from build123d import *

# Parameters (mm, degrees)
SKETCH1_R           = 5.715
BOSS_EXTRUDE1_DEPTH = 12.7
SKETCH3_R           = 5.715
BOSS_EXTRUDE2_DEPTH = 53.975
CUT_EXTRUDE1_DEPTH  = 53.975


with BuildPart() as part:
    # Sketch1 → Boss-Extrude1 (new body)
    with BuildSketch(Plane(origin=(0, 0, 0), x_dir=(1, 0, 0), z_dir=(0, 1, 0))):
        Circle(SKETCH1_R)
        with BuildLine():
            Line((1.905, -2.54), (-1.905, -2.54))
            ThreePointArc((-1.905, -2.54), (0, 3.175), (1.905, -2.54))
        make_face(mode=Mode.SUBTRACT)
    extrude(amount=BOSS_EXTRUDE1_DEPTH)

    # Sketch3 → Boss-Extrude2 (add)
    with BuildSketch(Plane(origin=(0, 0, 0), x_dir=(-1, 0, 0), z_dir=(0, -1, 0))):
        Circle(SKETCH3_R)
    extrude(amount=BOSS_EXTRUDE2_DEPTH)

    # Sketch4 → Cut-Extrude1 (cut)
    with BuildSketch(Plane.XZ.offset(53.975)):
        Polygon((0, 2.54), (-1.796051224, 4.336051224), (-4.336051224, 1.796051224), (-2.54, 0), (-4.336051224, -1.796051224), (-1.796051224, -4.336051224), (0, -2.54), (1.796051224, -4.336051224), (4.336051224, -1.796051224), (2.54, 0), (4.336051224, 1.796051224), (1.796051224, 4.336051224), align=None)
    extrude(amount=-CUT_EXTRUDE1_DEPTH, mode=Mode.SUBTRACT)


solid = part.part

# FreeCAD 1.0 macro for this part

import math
import FreeCAD as App
import Part
import Sketcher

V = App.Vector
Q = App.Units.Quantity

doc = App.newDocument("Part")
params = doc.addObject("Spreadsheet::Sheet", "Params")
for row, (alias, value) in enumerate([
    ("sketch1_diameter", "0.45 in"),
    ("sketch1_radius", "0.125 in"),
    ("sketch1_width", "0.15 in"),
    ("pad1_length", "0.5 in"),
    ("sketch2_diameter", "0.45 in"),
    ("pad2_length", "2.125 in"),
    ("sketch3_length", "0.1 in"),
    ("pocket1_length", "2.125 in"),
], start=1):
    params.set(f"A{row}", alias)
    params.set(f"B{row}", "=" + value)
    params.setAlias(f"B{row}", alias)

body = doc.addObject("PartDesign::Body", "Body")

sketch1 = doc.addObject("Sketcher::SketchObject", "Sketch")
body.addObject(sketch1)
sketch1.AttachmentSupport = (doc.XZ_Plane, [""])
sketch1.MapMode = "FlatFace"
sketch1.addGeometry(Part.Circle(V(0, 0, 0), V(0, 0, 1), 5.715), False)
sketch1.addGeometry(Part.ArcOfCircle(Part.Circle(V(0, 0, 0), V(0, 0, 1), 3.175), math.radians(126.869898), math.radians(413.130102)), False)
sketch1.addGeometry(Part.LineSegment(V(1.905, 2.54, 0), V(-1.905, 2.54, 0)), False)
sketch1.addConstraint(Sketcher.Constraint("Coincident", 1, 1, 2, 2))
sketch1.addConstraint(Sketcher.Constraint("Coincident", 2, 1, 1, 2))
sketch1.addConstraint(Sketcher.Constraint("Horizontal", 2))
sketch1.addConstraint(Sketcher.Constraint("Coincident", 0, 3, -1, 1))
sketch1.addConstraint(Sketcher.Constraint("Coincident", 1, 3, -1, 1))
sketch1.addConstraint(Sketcher.Constraint("Diameter", 0, Q("0.45 in")))
sketch1.addConstraint(Sketcher.Constraint("Radius", 1, Q("0.125 in")))
sketch1.addConstraint(Sketcher.Constraint("DistanceX", 2, 2, 2, 1, Q("0.15 in")))
sketch1.setExpression("Constraints[5]", "Params.sketch1_diameter")
sketch1.setExpression("Constraints[6]", "Params.sketch1_radius")
sketch1.setExpression("Constraints[7]", "Params.sketch1_width")
pad1 = doc.addObject("PartDesign::Pad", "Pad")
body.addObject(pad1)
pad1.Profile = sketch1
pad1.setExpression("Length", "Params.pad1_length")
pad1.Reversed = True

sketch2 = doc.addObject("Sketcher::SketchObject", "Sketch001")
body.addObject(sketch2)
sketch2.AttachmentSupport = (doc.XZ_Plane, [""])
sketch2.MapMode = "FlatFace"
sketch2.addGeometry(Part.Circle(V(0, 0, 0), V(0, 0, 1), 5.715), False)
sketch2.addConstraint(Sketcher.Constraint("Coincident", 0, 3, -1, 1))
sketch2.addConstraint(Sketcher.Constraint("Diameter", 0, Q("0.45 in")))
sketch2.setExpression("Constraints[1]", "Params.sketch2_diameter")
pad2 = doc.addObject("PartDesign::Pad", "Pad001")
body.addObject(pad2)
pad2.Profile = sketch2
pad2.setExpression("Length", "Params.pad2_length")

sketch3 = doc.addObject("Sketcher::SketchObject", "Sketch002")
body.addObject(sketch3)
sketch3.AttachmentSupport = (doc.XZ_Plane, [""])
sketch3.MapMode = "FlatFace"
sketch3.AttachmentOffset = App.Placement(V(0, 0, 2.125 * 25.4), App.Rotation())
sketch3.addGeometry(Part.LineSegment(V(0, 2.54, 0), V(-1.796051, 4.336051, 0)), False)
sketch3.addGeometry(Part.LineSegment(V(-1.796051, 4.336051, 0), V(-4.336051, 1.796051, 0)), False)
sketch3.addGeometry(Part.LineSegment(V(-4.336051, 1.796051, 0), V(-2.54, 0, 0)), False)
sketch3.addGeometry(Part.LineSegment(V(-2.54, 0, 0), V(-4.336051, -1.796051, 0)), False)
sketch3.addGeometry(Part.LineSegment(V(-4.336051, -1.796051, 0), V(-1.796051, -4.336051, 0)), False)
sketch3.addGeometry(Part.LineSegment(V(-1.796051, -4.336051, 0), V(0, -2.54, 0)), False)
sketch3.addGeometry(Part.LineSegment(V(0, -2.54, 0), V(1.796051, -4.336051, 0)), False)
sketch3.addGeometry(Part.LineSegment(V(1.796051, -4.336051, 0), V(4.336051, -1.796051, 0)), False)
sketch3.addGeometry(Part.LineSegment(V(4.336051, -1.796051, 0), V(2.54, 0, 0)), False)
sketch3.addGeometry(Part.LineSegment(V(2.54, 0, 0), V(4.336051, 1.796051, 0)), False)
sketch3.addGeometry(Part.LineSegment(V(4.336051, 1.796051, 0), V(1.796051, 4.336051, 0)), False)
sketch3.addGeometry(Part.LineSegment(V(1.796051, 4.336051, 0), V(0, 2.54, 0)), False)
sketch3.addConstraint(Sketcher.Constraint("Coincident", 0, 2, 1, 1))
sketch3.addConstraint(Sketcher.Constraint("Coincident", 1, 2, 2, 1))
sketch3.addConstraint(Sketcher.Constraint("Coincident", 2, 2, 3, 1))
sketch3.addConstraint(Sketcher.Constraint("Coincident", 3, 2, 4, 1))
sketch3.addConstraint(Sketcher.Constraint("Coincident", 4, 2, 5, 1))
sketch3.addConstraint(Sketcher.Constraint("Coincident", 5, 2, 6, 1))
sketch3.addConstraint(Sketcher.Constraint("Coincident", 6, 2, 7, 1))
sketch3.addConstraint(Sketcher.Constraint("Coincident", 7, 2, 8, 1))
sketch3.addConstraint(Sketcher.Constraint("Coincident", 8, 2, 9, 1))
sketch3.addConstraint(Sketcher.Constraint("Coincident", 9, 2, 10, 1))
sketch3.addConstraint(Sketcher.Constraint("Coincident", 10, 2, 11, 1))
sketch3.addConstraint(Sketcher.Constraint("Coincident", 11, 2, 0, 1))
sketch3.addConstraint(Sketcher.Constraint("Symmetric", 0, 2, 6, 2, -1, 1))
sketch3.addConstraint(Sketcher.Constraint("Symmetric", 1, 2, 7, 2, -1, 1))
sketch3.addConstraint(Sketcher.Constraint("Symmetric", 2, 2, 8, 2, -1, 1))
sketch3.addConstraint(Sketcher.Constraint("Symmetric", 3, 2, 9, 2, -1, 1))
sketch3.addConstraint(Sketcher.Constraint("Symmetric", 4, 2, 10, 2, -1, 1))
sketch3.addConstraint(Sketcher.Constraint("Symmetric", 5, 2, 11, 2, -1, 1))
sketch3.addConstraint(Sketcher.Constraint("Symmetric", 4, 2, 6, 2, -2))
sketch3.addConstraint(Sketcher.Constraint("Symmetric", 3, 2, 7, 2, -2))
sketch3.addConstraint(Sketcher.Constraint("PointOnObject", 2, 2, -1))
sketch3.addConstraint(Sketcher.Constraint("PointOnObject", 5, 2, -2))
sketch3.addConstraint(Sketcher.Constraint("Perpendicular", 0, 1))
sketch3.addConstraint(Sketcher.Constraint("Perpendicular", 1, 2))
sketch3.addConstraint(Sketcher.Constraint("Perpendicular", 2, 3))
sketch3.addConstraint(Sketcher.Constraint("Equal", 0, 2))
sketch3.addConstraint(Sketcher.Constraint("Distance", 0, Q("0.1 in")))
sketch3.addConstraint(Sketcher.Constraint("DistanceX", 2, 2, -1, 1, Q("0.1 in")))
sketch3.setExpression("Constraints[26]", "Params.sketch3_length")
pocket1 = doc.addObject("PartDesign::Pocket", "Pocket")
body.addObject(pocket1)
pocket1.Profile = sketch3
pocket1.setExpression("Length", "Params.pocket1_length")

doc.recompute()
